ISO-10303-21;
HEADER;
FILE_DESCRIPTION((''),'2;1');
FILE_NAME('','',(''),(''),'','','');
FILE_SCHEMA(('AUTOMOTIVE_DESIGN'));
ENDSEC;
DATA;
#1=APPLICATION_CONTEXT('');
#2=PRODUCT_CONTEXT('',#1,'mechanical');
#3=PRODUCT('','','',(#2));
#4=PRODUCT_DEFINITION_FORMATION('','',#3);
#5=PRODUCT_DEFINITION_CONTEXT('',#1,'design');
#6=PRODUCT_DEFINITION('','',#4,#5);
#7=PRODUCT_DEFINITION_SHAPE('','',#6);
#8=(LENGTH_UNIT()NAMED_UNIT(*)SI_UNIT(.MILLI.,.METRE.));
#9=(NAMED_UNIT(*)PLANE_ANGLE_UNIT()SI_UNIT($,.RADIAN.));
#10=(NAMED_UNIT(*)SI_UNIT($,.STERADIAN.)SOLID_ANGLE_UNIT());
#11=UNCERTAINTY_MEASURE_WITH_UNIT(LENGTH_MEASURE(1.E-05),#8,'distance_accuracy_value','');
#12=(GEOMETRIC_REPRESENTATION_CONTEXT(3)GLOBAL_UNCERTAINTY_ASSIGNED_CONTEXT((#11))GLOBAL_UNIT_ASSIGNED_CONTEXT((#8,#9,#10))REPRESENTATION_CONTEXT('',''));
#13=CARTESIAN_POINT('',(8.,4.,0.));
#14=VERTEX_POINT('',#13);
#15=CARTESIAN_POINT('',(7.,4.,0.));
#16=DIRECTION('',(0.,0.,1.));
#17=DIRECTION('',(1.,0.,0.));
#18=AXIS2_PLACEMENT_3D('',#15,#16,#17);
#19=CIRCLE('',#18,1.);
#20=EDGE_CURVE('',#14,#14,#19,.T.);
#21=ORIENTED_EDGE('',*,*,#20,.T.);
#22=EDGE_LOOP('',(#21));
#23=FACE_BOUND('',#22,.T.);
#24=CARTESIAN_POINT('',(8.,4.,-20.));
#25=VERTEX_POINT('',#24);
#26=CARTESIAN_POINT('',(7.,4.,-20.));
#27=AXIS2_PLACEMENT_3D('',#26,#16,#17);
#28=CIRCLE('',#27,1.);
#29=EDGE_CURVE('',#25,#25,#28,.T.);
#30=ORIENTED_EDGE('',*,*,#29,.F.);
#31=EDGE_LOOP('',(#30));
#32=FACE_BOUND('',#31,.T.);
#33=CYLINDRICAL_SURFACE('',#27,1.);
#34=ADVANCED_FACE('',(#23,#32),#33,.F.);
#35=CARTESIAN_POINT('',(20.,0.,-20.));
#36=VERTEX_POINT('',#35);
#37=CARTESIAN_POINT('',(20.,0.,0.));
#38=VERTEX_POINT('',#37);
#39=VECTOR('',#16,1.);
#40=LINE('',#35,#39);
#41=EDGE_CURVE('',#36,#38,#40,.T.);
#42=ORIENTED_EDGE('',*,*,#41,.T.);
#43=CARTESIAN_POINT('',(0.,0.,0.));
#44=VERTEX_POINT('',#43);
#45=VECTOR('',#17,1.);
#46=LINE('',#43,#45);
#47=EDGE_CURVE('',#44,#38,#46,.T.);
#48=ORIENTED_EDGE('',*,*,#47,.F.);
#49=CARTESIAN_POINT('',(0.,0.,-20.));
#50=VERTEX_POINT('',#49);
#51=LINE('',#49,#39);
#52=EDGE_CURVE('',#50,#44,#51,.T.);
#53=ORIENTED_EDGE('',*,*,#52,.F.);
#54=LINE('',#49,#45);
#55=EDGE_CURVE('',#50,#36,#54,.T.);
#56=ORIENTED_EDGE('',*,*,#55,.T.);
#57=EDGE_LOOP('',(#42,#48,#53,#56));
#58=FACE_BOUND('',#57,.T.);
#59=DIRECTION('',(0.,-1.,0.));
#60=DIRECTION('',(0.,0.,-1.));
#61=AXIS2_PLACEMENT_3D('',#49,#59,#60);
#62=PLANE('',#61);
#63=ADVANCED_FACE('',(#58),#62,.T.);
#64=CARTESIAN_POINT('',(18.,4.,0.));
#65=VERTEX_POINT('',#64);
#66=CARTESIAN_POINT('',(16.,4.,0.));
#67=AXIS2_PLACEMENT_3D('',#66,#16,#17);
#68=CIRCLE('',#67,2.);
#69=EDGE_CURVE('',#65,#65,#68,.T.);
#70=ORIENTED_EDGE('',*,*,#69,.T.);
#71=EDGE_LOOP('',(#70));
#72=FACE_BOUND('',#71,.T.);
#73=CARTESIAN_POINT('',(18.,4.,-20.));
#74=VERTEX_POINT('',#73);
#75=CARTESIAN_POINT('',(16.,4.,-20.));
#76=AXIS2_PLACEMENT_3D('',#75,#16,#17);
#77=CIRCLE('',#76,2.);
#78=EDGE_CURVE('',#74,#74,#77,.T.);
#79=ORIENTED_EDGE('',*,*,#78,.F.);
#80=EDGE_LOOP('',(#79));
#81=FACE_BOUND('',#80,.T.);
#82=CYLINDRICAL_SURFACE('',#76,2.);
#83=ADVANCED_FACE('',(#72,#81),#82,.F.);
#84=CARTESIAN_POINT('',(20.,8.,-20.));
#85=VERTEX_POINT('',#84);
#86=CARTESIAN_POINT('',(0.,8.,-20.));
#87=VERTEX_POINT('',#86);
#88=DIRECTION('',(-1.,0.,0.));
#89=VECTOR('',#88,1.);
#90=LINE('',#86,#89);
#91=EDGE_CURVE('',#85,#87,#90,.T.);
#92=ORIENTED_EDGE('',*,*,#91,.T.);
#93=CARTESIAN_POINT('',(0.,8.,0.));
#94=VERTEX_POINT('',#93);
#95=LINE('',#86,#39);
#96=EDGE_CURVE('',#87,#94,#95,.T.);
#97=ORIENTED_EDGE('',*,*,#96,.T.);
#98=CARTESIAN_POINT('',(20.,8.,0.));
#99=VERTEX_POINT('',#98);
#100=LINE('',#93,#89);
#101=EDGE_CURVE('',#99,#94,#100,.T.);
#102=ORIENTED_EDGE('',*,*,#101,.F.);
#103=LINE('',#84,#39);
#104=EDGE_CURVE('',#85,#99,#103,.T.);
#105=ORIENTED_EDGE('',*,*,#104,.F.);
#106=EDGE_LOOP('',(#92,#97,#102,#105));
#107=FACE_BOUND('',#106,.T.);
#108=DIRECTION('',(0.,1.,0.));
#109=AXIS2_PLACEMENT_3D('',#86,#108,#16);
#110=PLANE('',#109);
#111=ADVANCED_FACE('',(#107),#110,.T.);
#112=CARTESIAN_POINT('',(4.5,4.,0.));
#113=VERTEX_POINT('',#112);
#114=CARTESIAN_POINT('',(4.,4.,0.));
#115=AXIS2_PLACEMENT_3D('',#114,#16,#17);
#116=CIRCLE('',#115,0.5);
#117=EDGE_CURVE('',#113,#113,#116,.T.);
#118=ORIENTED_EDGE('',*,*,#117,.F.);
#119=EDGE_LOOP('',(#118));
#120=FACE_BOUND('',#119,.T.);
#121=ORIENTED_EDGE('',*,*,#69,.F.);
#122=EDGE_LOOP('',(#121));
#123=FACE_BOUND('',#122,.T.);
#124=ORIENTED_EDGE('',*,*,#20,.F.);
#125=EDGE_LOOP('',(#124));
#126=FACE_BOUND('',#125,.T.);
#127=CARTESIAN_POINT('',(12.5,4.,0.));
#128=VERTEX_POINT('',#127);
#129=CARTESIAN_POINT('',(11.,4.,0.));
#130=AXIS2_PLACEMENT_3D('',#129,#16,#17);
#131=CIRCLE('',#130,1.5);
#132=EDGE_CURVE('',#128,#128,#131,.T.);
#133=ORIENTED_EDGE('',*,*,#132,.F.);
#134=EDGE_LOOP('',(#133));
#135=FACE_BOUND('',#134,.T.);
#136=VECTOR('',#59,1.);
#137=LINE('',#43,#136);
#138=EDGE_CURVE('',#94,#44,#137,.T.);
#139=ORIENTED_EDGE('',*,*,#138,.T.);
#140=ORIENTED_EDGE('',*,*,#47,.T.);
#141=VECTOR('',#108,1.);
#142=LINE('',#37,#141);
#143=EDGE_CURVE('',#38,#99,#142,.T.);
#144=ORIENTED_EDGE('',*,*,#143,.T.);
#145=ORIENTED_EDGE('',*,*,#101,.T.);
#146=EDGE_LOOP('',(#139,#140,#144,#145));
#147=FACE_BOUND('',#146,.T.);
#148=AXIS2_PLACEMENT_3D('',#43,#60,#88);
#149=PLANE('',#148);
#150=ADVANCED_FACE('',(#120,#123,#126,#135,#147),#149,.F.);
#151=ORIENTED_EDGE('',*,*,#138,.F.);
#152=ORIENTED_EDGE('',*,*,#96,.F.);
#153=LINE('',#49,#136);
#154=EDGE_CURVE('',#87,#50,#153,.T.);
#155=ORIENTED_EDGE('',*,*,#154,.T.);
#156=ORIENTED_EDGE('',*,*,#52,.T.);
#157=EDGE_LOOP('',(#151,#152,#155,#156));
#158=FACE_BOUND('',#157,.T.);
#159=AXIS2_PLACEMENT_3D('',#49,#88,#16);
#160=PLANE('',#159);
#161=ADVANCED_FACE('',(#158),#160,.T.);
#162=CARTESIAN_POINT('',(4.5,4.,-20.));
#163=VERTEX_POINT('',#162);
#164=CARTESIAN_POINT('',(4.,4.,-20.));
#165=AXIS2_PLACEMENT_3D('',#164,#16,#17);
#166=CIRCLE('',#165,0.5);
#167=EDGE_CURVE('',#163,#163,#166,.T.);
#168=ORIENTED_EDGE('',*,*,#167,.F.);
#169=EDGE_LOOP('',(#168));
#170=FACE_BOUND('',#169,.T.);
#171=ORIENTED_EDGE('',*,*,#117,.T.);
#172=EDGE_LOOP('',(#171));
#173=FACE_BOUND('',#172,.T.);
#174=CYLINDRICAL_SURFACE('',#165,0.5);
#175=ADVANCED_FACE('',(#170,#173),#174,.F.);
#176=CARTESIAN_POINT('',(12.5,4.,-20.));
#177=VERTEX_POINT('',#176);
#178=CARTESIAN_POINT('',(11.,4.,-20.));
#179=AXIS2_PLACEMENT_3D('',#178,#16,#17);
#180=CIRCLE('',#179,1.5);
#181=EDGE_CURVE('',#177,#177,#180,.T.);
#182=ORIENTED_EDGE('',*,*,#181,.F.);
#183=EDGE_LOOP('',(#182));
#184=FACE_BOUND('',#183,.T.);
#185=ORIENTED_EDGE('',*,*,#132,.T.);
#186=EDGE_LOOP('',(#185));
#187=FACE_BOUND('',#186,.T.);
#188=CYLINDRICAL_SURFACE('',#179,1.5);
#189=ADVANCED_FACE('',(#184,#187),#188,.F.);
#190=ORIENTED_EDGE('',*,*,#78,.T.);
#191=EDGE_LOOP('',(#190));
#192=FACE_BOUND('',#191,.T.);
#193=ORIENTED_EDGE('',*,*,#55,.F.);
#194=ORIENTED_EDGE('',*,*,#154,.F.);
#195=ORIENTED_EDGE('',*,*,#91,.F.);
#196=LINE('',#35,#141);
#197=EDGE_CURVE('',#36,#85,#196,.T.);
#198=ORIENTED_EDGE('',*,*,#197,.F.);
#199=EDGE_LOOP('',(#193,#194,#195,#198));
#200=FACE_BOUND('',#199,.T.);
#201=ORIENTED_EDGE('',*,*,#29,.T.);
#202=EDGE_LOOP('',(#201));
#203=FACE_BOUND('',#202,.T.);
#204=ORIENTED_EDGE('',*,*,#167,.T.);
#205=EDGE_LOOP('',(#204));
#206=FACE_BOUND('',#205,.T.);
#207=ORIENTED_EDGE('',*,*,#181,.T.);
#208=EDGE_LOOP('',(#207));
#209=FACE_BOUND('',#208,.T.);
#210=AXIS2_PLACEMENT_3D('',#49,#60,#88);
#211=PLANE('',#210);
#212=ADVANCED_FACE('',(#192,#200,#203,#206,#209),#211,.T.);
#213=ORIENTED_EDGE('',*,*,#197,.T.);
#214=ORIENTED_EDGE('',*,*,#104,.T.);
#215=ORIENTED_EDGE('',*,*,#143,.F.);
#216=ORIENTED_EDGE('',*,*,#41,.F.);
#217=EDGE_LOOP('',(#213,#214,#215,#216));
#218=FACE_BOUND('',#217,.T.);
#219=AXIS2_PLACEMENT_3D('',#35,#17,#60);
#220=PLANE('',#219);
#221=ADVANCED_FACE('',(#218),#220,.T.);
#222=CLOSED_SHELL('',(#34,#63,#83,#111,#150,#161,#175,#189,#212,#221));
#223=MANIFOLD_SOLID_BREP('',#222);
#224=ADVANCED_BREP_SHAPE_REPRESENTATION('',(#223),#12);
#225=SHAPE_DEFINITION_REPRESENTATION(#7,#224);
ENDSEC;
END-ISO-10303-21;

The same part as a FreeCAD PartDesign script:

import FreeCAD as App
import Part
import Sketcher
Q = App.Units.Quantity


def add_polygon(sketch, points):
    """Adds a closed chain of lines whose ends are joined by coincident constraints."""
    first, n = sketch.GeometryCount, len(points)
    for a, b in zip(points, points[1:] + points[:1]):
        sketch.addGeometry(Part.LineSegment(App.Vector(*a, 0), App.Vector(*b, 0)), False)
    for i in range(n):
        sketch.addConstraint(Sketcher.Constraint("Coincident", first + i, 2, first + (i + 1) % n, 1))

doc = App.newDocument("Part")
body = doc.addObject("PartDesign::Body", "Body")

sketch1 = body.newObject("Sketcher::SketchObject", "Sketch")
sketch1.AttachmentSupport = (doc.getObject("XY_Plane"), [""])
sketch1.MapMode = "FlatFace"
add_polygon(sketch1, [(0, 8), (0, 0), (20, 0), (20, 8)])
sketch1.addConstraint([
    Sketcher.Constraint("Vertical", 0),
    Sketcher.Constraint("Horizontal", 1),
    Sketcher.Constraint("Vertical", 2),
    Sketcher.Constraint("Horizontal", 3),
    Sketcher.Constraint("Coincident", 0, 2, -1, 1),
    Sketcher.Constraint("DistanceX", 1, 1, 1, 2, Q("20 mm")),
    Sketcher.Constraint("DistanceY", 0, 2, 0, 1, Q("8 mm")),
])
pad1 = body.newObject("PartDesign::Pad", "Pad")
pad1.Profile = sketch1
pad1.Length = 20
pad1.Reversed = True

sketch2 = body.newObject("Sketcher::SketchObject", "Sketch001")
sketch2.AttachmentSupport = (doc.getObject("XY_Plane"), [""])
sketch2.MapMode = "FlatFace"
sketch2.addGeometry([
    Part.Circle(App.Vector(4, 4, 0), App.Vector(0, 0, 1), 0.5),
    Part.Circle(App.Vector(7, 4, 0), App.Vector(0, 0, 1), 1),
    Part.Circle(App.Vector(11, 4, 0), App.Vector(0, 0, 1), 1.5),
    Part.Circle(App.Vector(16, 4, 0), App.Vector(0, 0, 1), 2),
], False)
sketch2.addConstraint([
    Sketcher.Constraint("Horizontal", 0, 3, 1, 3),
    Sketcher.Constraint("Horizontal", 1, 3, 2, 3),
    Sketcher.Constraint("Horizontal", 2, 3, 3, 3),
    Sketcher.Constraint("Diameter", 0, Q("1 mm")),
    Sketcher.Constraint("Diameter", 1, Q("2 mm")),
    Sketcher.Constraint("Diameter", 2, Q("3 mm")),
    Sketcher.Constraint("Diameter", 3, Q("4 mm")),
    Sketcher.Constraint("DistanceX", -1, 1, 0, 3, Q("4 mm")),
    Sketcher.Constraint("DistanceY", -1, 1, 0, 3, Q("4 mm")),
    Sketcher.Constraint("DistanceX", -1, 1, 1, 3, Q("7 mm")),
    Sketcher.Constraint("DistanceX", -1, 1, 2, 3, Q("11 mm")),
    Sketcher.Constraint("DistanceX", -1, 1, 3, 3, Q("16 mm")),
])
pocket1 = body.newObject("PartDesign::Pocket", "Pocket")
pocket1.Profile = sketch2
pocket1.Type = "ThroughAll"

doc.recompute()
